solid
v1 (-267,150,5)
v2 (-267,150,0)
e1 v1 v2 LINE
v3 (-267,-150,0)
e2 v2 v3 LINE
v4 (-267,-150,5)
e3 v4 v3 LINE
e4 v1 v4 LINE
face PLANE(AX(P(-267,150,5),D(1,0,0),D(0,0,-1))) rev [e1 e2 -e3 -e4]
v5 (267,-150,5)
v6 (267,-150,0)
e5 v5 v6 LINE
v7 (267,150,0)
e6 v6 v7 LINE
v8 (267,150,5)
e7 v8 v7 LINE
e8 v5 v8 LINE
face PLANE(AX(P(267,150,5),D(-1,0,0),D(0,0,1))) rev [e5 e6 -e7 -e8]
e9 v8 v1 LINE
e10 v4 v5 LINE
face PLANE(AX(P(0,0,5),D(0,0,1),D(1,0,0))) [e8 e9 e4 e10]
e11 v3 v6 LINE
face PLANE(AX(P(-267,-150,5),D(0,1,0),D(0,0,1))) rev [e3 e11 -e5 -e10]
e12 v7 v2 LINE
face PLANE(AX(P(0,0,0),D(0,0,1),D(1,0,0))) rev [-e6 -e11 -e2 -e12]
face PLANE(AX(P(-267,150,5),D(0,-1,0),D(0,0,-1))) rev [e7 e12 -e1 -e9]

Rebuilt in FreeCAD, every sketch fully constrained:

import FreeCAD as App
import Part
import Sketcher

V = App.Vector
Q = App.Units.Quantity


def add_polygon(sketch, points):
    """Adds a closed chain of lines whose ends are joined by coincident constraints."""
    first, n = sketch.GeometryCount, len(points)
    for a, b in zip(points, points[1:] + points[:1]):
        sketch.addGeometry(Part.LineSegment(App.Vector(*a, 0), App.Vector(*b, 0)), False)
    for i in range(n):
        sketch.addConstraint(Sketcher.Constraint("Coincident", first + i, 2, first + (i + 1) % n, 1))

doc = App.newDocument("Part")
body = doc.addObject("PartDesign::Body", "Body")

sketch1 = body.newObject("Sketcher::SketchObject", "Sketch")
sketch1.AttachmentSupport = (doc.getObject("XY_Plane"), [""])
sketch1.MapMode = "FlatFace"
add_polygon(sketch1, [(-267, 150), (-267, -150), (267, -150), (267, 150)])
sketch1.addConstraint(Sketcher.Constraint("Vertical", 0))
sketch1.addConstraint(Sketcher.Constraint("Horizontal", 1))
sketch1.addConstraint(Sketcher.Constraint("Vertical", 2))
sketch1.addConstraint(Sketcher.Constraint("Horizontal", 3))
sketch1.addConstraint(Sketcher.Constraint("Symmetric", 0, 2, 2, 2, -1, 1))
sketch1.addConstraint(Sketcher.Constraint("DistanceX", 1, 1, 1, 2, Q("534 mm")))
sketch1.addConstraint(Sketcher.Constraint("DistanceY", 0, 2, 0, 1, Q("300 mm")))
pad1 = body.newObject("PartDesign::Pad", "Pad")
pad1.Profile = sketch1
pad1.Length = 5

doc.recompute()
